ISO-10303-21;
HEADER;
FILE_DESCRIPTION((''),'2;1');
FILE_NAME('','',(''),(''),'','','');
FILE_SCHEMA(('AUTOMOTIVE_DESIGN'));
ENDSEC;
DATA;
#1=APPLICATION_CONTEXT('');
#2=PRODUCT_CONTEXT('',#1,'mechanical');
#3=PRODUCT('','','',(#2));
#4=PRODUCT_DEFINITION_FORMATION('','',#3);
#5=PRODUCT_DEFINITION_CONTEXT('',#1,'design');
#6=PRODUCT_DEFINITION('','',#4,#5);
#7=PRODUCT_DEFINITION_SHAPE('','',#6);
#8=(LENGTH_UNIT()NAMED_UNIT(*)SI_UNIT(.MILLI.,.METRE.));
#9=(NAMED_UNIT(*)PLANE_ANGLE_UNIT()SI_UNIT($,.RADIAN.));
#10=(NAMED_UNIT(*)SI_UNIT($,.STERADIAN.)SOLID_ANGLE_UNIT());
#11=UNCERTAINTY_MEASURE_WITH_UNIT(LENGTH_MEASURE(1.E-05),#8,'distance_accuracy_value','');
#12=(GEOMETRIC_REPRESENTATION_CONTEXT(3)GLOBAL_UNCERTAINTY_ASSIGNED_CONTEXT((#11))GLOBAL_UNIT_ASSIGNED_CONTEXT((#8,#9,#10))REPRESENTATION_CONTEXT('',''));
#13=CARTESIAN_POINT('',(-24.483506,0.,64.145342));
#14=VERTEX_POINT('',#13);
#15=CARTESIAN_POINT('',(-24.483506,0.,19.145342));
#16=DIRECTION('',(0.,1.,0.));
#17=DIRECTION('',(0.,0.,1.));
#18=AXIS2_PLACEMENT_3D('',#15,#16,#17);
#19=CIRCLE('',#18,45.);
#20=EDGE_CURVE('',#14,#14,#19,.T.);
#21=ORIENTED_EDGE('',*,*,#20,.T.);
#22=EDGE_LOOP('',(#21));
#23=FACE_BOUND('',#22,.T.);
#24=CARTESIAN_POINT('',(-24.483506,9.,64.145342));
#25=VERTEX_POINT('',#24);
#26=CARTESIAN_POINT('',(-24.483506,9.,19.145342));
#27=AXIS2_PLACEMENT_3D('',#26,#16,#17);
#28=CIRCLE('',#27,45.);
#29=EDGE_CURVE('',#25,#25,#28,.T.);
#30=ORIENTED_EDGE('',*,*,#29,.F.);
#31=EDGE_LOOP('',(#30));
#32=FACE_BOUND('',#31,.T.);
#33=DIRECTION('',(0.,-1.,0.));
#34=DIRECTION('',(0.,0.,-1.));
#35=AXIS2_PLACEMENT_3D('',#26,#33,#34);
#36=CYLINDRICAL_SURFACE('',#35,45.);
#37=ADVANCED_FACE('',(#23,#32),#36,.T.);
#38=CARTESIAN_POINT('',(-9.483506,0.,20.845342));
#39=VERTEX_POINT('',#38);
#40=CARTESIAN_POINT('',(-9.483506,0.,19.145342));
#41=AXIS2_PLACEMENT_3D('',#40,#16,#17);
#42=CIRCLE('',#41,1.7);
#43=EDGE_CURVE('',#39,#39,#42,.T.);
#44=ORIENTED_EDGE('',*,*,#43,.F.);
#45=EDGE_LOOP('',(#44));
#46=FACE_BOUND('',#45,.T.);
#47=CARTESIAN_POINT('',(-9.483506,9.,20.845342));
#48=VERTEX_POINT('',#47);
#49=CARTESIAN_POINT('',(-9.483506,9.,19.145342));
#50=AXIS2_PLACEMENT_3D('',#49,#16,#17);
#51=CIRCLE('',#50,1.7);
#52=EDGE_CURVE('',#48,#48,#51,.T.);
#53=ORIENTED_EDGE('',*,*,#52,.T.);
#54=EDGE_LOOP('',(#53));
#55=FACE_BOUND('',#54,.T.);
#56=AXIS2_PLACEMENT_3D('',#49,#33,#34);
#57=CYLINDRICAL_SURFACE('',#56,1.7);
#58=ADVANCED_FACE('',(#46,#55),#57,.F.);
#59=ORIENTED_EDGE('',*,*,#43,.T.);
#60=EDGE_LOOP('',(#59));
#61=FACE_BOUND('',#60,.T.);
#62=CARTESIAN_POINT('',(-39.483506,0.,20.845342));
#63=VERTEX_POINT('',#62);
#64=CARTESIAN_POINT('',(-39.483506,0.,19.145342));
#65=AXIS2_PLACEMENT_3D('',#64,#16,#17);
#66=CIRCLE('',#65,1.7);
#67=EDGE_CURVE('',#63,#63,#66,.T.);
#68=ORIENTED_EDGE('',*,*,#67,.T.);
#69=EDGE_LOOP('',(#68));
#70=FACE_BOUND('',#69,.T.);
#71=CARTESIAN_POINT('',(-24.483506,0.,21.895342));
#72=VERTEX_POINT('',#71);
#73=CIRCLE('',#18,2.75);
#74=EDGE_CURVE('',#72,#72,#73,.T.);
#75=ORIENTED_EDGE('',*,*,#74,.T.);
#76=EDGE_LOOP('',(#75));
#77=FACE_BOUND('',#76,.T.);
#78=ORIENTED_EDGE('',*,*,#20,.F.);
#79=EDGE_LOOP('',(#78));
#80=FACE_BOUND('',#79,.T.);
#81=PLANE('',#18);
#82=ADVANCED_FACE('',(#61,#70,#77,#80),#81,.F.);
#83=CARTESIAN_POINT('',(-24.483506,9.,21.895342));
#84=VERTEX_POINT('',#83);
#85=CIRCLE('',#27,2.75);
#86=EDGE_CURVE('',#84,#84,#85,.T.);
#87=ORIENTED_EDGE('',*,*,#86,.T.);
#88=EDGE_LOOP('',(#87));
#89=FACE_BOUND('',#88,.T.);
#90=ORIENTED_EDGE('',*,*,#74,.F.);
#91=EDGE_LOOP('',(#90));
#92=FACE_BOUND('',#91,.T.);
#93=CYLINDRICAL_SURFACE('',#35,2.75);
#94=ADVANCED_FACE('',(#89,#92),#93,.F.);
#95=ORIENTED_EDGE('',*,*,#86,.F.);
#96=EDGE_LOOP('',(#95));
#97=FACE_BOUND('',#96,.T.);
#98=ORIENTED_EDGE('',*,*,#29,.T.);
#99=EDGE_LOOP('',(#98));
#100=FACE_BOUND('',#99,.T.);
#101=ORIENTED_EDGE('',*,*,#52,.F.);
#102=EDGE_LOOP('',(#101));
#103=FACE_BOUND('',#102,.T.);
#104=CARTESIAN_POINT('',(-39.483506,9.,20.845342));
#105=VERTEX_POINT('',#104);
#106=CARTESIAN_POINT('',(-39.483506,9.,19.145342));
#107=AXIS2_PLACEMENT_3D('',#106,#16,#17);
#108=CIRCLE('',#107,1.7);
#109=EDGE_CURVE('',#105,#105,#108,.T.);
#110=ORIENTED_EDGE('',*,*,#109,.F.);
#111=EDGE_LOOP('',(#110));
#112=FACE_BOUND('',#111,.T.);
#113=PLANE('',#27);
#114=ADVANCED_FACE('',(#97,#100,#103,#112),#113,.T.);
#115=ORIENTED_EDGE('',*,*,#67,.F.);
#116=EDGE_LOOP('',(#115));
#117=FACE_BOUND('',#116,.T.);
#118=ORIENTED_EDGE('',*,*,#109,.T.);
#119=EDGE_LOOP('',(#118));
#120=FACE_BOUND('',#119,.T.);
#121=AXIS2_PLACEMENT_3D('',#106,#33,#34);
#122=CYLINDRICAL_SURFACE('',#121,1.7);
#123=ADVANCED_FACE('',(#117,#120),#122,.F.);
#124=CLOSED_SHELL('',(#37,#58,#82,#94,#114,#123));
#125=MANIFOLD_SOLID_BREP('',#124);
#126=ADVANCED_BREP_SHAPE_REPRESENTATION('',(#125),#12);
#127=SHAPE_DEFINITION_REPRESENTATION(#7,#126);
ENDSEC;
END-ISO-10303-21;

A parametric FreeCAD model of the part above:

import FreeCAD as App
import Part
import Sketcher
from FreeCAD import Vector

doc = App.newDocument("Part")
body = doc.addObject("PartDesign::Body", "Body")

# Sketch on XZ plane
sketch1 = body.newObject("Sketcher::SketchObject", "Sketch")
sketch1.AttachmentSupport = (doc.getObject("XZ_Plane"), [""])
sketch1.MapMode = "FlatFace"
sketch1.addGeometry([
    Part.Circle(Vector(-24.5, 19.1, 0), Vector(0, 0, 1), 45),
    Part.Circle(Vector(-39.5, 19.1, 0), Vector(0, 0, 1), 1.7),
    Part.Circle(Vector(-9.5, 19.1, 0), Vector(0, 0, 1), 1.7),
    Part.Circle(Vector(-24.5, 19.1, 0), Vector(0, 0, 1), 2.8),
], False)
sketch1.addConstraint([
    Sketcher.Constraint("Coincident", 3, 3, 0, 3),
    Sketcher.Constraint("Equal", 1, 2),
    Sketcher.Constraint("Horizontal", 0, 3, 1, 3),
    Sketcher.Constraint("Horizontal", 1, 3, 2, 3),
    Sketcher.Constraint("Diameter", 0, 90.0),
    Sketcher.Constraint("Diameter", 1, 3.4),
    Sketcher.Constraint("Diameter", 3, 5.5),
    Sketcher.Constraint("DistanceX", 1, 3, 0, 3, 15.0),
    Sketcher.Constraint("DistanceX", 0, 3, 2, 3, 15.0),
    Sketcher.Constraint("DistanceY", -1, 1, 0, 3, 19.145342),
    Sketcher.Constraint("DistanceX", 0, 3, -1, 1, 24.483506),
])
pad1 = body.newObject("PartDesign::Pad", "Pad")
pad1.Profile = sketch1
pad1.Length = 9
pad1.Reversed = True

doc.recompute()
